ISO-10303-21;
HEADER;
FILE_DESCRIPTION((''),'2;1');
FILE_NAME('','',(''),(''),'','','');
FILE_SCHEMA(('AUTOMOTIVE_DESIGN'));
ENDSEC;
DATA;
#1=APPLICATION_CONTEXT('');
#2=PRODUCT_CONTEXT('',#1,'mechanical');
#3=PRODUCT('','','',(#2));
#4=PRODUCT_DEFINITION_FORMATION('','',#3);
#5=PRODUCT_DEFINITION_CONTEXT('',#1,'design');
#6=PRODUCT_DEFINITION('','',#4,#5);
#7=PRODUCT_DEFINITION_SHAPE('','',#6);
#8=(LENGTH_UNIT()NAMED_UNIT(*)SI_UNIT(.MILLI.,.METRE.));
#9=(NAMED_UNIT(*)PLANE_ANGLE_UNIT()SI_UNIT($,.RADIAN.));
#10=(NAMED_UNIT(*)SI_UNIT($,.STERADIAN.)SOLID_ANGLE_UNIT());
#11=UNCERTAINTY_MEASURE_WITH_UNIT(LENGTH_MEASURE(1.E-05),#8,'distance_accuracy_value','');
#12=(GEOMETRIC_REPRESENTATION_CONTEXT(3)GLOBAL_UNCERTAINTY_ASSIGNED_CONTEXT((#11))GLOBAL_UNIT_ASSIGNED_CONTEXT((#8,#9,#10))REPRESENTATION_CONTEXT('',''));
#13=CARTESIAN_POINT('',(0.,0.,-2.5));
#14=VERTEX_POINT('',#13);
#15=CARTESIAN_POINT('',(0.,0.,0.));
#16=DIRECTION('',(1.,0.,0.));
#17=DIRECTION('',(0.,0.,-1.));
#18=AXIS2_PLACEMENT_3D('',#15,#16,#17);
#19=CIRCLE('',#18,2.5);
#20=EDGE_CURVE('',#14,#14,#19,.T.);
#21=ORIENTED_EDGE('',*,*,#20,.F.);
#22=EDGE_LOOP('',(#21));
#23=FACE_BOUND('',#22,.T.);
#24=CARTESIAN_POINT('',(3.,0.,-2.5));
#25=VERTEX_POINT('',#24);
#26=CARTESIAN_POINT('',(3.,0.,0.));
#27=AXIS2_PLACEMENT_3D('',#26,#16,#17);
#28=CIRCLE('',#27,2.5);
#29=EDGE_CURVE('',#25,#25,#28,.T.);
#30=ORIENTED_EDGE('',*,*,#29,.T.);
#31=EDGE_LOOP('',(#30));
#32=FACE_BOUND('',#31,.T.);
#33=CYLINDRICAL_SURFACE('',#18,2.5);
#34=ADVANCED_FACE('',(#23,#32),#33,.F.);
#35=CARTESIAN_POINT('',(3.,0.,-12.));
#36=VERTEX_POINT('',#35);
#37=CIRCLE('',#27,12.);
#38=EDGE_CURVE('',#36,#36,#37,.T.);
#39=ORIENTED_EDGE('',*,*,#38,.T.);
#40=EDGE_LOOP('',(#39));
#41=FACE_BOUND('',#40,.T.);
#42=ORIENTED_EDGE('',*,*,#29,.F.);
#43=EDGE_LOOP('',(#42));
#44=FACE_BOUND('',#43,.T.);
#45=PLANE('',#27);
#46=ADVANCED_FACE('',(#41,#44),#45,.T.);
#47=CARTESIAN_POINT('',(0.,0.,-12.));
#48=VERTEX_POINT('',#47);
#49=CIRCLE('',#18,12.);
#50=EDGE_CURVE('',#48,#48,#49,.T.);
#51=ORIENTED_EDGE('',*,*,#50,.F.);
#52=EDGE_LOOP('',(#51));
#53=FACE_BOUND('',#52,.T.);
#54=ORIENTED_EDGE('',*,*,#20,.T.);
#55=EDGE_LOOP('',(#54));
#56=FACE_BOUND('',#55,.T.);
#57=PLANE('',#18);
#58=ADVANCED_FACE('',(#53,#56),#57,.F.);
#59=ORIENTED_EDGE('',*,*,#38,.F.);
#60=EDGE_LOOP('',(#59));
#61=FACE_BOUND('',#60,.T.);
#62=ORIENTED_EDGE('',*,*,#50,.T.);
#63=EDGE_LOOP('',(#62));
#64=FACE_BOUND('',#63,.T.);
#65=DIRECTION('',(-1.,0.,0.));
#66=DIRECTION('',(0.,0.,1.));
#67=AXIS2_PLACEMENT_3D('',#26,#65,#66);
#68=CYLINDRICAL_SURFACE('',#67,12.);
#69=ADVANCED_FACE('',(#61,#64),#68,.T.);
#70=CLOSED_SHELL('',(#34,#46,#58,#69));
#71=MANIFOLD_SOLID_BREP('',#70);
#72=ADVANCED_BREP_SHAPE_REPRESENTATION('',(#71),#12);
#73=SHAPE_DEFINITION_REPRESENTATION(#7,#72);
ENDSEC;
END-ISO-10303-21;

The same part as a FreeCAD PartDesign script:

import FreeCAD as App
import Part
import Sketcher
from FreeCAD import Vector
Q = App.Units.Quantity

doc = App.newDocument("Part")
params = doc.addObject("Spreadsheet::Sheet", "Params")
for row, (alias, value) in enumerate([
    ("sketch1_diameter", "24 mm"),
    ("pad1_length", "3 mm"),
    ("sketch2_diameter", "5 mm"),
    ("pocket1_length", "3 mm"),
], start=1):
    params.set(f"A{row}", alias)
    params.set(f"B{row}", "=" + value)
    params.setAlias(f"B{row}", alias)

body = doc.addObject("PartDesign::Body", "Body")

# Sketch on YZ plane
sketch1 = body.newObject("Sketcher::SketchObject", "Sketch")
sketch1.AttachmentSupport = (doc.getObject("YZ_Plane"), [""])
sketch1.MapMode = "FlatFace"
sketch1.addGeometry(Part.Circle(Vector(0, 0, 0), Vector(0, 0, 1), 12), False)
sketch1.addConstraint(Sketcher.Constraint("Coincident", 0, 3, -1, 1))
sketch1.addConstraint(Sketcher.Constraint("Diameter", 0, Q("24 mm")))
sketch1.setExpression("Constraints[1]", "Params.sketch1_diameter")
pad1 = body.newObject("PartDesign::Pad", "Pad")
pad1.Profile = sketch1
pad1.setExpression("Length", "Params.pad1_length")

# Sketch on YZ plane
sketch2 = body.newObject("Sketcher::SketchObject", "Sketch001")
sketch2.AttachmentSupport = (doc.getObject("YZ_Plane"), [""])
sketch2.MapMode = "FlatFace"
sketch2.AttachmentOffset = App.Placement(Vector(0, 0, 3), App.Rotation())
sketch2.addGeometry(Part.Circle(Vector(0, 0, 0), Vector(0, 0, 1), 2.5), False)
sketch2.addConstraint(Sketcher.Constraint("Coincident", 0, 3, -1, 1))
sketch2.addConstraint(Sketcher.Constraint("Diameter", 0, Q("5 mm")))
sketch2.setExpression("Constraints[1]", "Params.sketch2_diameter")
pocket1 = body.newObject("PartDesign::Pocket", "Pocket")
pocket1.Profile = sketch2
pocket1.setExpression("Length", "Params.pocket1_length")

doc.recompute()
